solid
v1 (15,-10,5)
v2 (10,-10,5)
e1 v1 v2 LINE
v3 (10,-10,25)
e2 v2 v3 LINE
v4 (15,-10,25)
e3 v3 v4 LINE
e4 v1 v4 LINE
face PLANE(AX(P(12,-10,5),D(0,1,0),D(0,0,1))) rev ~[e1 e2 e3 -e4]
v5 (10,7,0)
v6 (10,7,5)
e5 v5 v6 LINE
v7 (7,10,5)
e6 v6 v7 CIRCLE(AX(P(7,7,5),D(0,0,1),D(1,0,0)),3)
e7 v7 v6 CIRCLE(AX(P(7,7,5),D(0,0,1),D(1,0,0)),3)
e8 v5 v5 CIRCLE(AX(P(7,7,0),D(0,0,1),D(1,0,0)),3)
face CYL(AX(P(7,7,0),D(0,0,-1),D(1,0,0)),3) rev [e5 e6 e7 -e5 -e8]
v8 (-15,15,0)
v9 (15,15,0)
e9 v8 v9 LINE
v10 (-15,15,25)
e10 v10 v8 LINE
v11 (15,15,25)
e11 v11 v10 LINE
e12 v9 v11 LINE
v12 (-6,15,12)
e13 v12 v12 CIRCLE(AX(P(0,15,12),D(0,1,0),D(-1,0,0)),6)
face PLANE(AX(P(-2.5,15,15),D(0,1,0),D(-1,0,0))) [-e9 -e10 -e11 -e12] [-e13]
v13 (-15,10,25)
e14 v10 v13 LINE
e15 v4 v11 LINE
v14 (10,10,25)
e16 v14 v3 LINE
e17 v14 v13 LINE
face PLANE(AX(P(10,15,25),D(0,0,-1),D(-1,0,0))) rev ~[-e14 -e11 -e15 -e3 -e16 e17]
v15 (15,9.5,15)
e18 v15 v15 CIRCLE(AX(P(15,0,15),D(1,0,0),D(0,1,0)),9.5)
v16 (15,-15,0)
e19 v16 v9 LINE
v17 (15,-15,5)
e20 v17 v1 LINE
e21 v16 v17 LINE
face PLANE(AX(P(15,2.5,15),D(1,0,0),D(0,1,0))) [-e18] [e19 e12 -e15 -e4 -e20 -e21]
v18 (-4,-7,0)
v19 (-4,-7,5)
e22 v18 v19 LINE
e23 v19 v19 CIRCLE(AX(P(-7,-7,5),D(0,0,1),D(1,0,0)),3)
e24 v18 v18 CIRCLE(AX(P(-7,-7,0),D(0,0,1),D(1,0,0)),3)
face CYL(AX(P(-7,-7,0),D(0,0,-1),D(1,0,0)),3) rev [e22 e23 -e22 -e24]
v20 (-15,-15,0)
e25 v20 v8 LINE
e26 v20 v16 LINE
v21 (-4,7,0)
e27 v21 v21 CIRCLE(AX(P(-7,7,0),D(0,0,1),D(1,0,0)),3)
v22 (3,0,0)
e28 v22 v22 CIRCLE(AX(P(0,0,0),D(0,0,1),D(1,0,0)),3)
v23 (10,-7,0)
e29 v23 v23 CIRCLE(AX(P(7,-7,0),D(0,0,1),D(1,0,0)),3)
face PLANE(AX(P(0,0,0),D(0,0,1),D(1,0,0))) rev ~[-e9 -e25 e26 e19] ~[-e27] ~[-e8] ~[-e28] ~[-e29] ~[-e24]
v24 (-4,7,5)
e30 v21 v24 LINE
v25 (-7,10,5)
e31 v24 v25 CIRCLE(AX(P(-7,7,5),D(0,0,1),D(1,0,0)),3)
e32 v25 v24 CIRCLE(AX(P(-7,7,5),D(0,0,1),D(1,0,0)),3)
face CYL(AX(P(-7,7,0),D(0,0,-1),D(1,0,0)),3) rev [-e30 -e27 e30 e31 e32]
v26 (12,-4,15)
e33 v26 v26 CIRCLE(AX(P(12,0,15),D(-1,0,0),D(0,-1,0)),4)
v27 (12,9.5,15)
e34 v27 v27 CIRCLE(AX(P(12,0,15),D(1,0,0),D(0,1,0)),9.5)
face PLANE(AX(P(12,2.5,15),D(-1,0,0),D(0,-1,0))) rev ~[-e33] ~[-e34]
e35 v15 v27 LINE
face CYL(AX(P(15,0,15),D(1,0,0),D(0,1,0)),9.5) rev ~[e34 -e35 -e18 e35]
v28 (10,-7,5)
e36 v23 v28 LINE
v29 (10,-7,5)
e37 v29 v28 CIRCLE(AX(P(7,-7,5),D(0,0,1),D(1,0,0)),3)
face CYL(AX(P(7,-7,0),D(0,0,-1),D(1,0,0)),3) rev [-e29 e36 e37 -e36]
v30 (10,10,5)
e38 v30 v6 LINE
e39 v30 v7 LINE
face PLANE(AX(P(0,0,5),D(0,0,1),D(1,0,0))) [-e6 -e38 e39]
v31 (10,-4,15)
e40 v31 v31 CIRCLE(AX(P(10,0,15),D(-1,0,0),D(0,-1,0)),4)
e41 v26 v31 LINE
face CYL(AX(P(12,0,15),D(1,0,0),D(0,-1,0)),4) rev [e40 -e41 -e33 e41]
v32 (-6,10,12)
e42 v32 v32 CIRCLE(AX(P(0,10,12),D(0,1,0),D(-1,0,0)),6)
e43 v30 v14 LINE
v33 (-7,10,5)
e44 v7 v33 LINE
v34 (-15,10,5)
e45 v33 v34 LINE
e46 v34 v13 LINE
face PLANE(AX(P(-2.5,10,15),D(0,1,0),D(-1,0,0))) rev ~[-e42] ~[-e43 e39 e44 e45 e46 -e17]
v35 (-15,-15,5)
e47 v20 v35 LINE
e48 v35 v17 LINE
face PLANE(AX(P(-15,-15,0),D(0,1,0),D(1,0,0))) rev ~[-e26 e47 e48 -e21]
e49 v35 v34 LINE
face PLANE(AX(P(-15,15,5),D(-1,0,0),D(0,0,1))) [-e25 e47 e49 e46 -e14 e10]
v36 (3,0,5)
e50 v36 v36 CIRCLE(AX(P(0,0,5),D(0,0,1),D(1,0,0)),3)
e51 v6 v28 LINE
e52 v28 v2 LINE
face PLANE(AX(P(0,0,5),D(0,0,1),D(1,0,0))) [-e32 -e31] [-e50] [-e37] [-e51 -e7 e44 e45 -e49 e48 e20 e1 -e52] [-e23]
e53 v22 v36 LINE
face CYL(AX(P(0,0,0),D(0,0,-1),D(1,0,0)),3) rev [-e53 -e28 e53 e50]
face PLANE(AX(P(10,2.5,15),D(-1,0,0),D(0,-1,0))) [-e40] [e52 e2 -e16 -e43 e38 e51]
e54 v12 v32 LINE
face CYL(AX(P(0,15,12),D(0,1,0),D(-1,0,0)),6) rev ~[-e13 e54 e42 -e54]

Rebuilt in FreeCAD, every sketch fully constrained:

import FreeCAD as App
import Part
import Sketcher
from FreeCAD import Vector
Q = App.Units.Quantity

doc = App.newDocument("Part")
body = doc.addObject("PartDesign::Body", "Body")

# Sketch on XY plane
sketch1 = body.newObject("Sketcher::SketchObject", "Sketch")
sketch1.AttachmentSupport = (doc.getObject("XY_Plane"), [""])
sketch1.MapMode = "FlatFace"
sketch1.addGeometry([
    Part.LineSegment(Vector(-15, 15, 0), Vector(-15, -15, 0)),  # 0
    Part.LineSegment(Vector(-15, -15, 0), Vector(15, -15, 0)),  # 1
    Part.LineSegment(Vector(15, -15, 0), Vector(15, 15, 0)),  # 2
    Part.LineSegment(Vector(15, 15, 0), Vector(-15, 15, 0)),  # 3
    Part.Circle(Vector(-7, -7, 0), Vector(0, 0, 1), 3),  # 4
    Part.Circle(Vector(7, -7, 0), Vector(0, 0, 1), 3),  # 5
    Part.Circle(Vector(-7, 7, 0), Vector(0, 0, 1), 3),  # 6
    Part.Circle(Vector(0, 0, 0), Vector(0, 0, 1), 3),  # 7
    Part.Circle(Vector(7, 7, 0), Vector(0, 0, 1), 3),  # 8
], False)
sketch1.addConstraint([
    Sketcher.Constraint("Coincident", 0, 2, 1, 1),
    Sketcher.Constraint("Coincident", 1, 2, 2, 1),
    Sketcher.Constraint("Coincident", 2, 2, 3, 1),
    Sketcher.Constraint("Coincident", 3, 2, 0, 1),
    Sketcher.Constraint("Vertical", 0),
    Sketcher.Constraint("Horizontal", 1),
    Sketcher.Constraint("Vertical", 2),
    Sketcher.Constraint("Horizontal", 3),
    Sketcher.Constraint("Coincident", 7, 3, -1, 1),
    Sketcher.Constraint("Equal", 4, 5),
    Sketcher.Constraint("Equal", 5, 6),
    Sketcher.Constraint("Equal", 6, 7),
    Sketcher.Constraint("Equal", 7, 8),
    Sketcher.Constraint("Symmetric", 5, 3, 6, 3, -1, 1),
    Sketcher.Constraint("Symmetric", 4, 3, 8, 3, -1, 1),
    Sketcher.Constraint("Symmetric", 0, 2, 2, 2, -1, 1),
    Sketcher.Constraint("Symmetric", 4, 3, 5, 3, -2),
    Sketcher.Constraint("Equal", 3, 0),
    Sketcher.Constraint("Diameter", 4, Q("6 mm")),
    Sketcher.Constraint("DistanceX", 1, 1, 1, 2, Q("30 mm")),
    Sketcher.Constraint("DistanceX", 4, 3, -1, 1, Q("7 mm")),
    Sketcher.Constraint("DistanceY", 4, 3, -1, 1, Q("7 mm")),
])
pad1 = body.newObject("PartDesign::Pad", "Pad")
pad1.Profile = sketch1
pad1.Length = 5

# Sketch on YZ plane
sketch2 = body.newObject("Sketcher::SketchObject", "Sketch001")
sketch2.AttachmentSupport = (doc.getObject("YZ_Plane"), [""])
sketch2.MapMode = "FlatFace"
sketch2.AttachmentOffset = App.Placement(Vector(0, 0, 15), App.Rotation())
sketch2.addGeometry([
    Part.LineSegment(Vector(-10, 25, 0), Vector(-10, 5, 0)),  # 0
    Part.LineSegment(Vector(-10, 5, 0), Vector(15, 5, 0)),  # 1
    Part.LineSegment(Vector(15, 5, 0), Vector(15, 25, 0)),  # 2
    Part.LineSegment(Vector(15, 25, 0), Vector(-10, 25, 0)),  # 3
    Part.Circle(Vector(0, 15, 0), Vector(0, 0, 1), 9.5),  # 4
], False)
sketch2.addConstraint([
    Sketcher.Constraint("Coincident", 0, 2, 1, 1),
    Sketcher.Constraint("Coincident", 1, 2, 2, 1),
    Sketcher.Constraint("Coincident", 2, 2, 3, 1),
    Sketcher.Constraint("Coincident", 3, 2, 0, 1),
    Sketcher.Constraint("Vertical", 0),
    Sketcher.Constraint("Horizontal", 1),
    Sketcher.Constraint("Vertical", 2),
    Sketcher.Constraint("Horizontal", 3),
    Sketcher.Constraint("PointOnObject", 4, 3, -2),
    Sketcher.Constraint("Diameter", 4, Q("19 mm")),
    Sketcher.Constraint("DistanceX", 1, 1, 1, 2, Q("25 mm")),
    Sketcher.Constraint("DistanceY", 0, 2, 0, 1, Q("20 mm")),
    Sketcher.Constraint("DistanceY", -1, 1, 4, 3, Q("15 mm")),
    Sketcher.Constraint("DistanceX", 0, 2, -1, 1, Q("10 mm")),
    Sketcher.Constraint("DistanceY", -1, 1, 0, 2, Q("5 mm")),
])
pad2 = body.newObject("PartDesign::Pad", "Pad001")
pad2.Profile = sketch2
pad2.Length = 3
pad2.Reversed = True

# Sketch on YZ plane
sketch3 = body.newObject("Sketcher::SketchObject", "Sketch002")
sketch3.AttachmentSupport = (doc.getObject("YZ_Plane"), [""])
sketch3.MapMode = "FlatFace"
sketch3.AttachmentOffset = App.Placement(Vector(0, 0, 12), App.Rotation())
sketch3.addGeometry([
    Part.LineSegment(Vector(15, 25, 0), Vector(15, 5, 0)),  # 0
    Part.LineSegment(Vector(15, 5, 0), Vector(-10, 5, 0)),  # 1
    Part.LineSegment(Vector(-10, 5, 0), Vector(-10, 25, 0)),  # 2
    Part.LineSegment(Vector(-10, 25, 0), Vector(15, 25, 0)),  # 3
    Part.Circle(Vector(0, 15, 0), Vector(0, 0, 1), 4),  # 4
], False)
sketch3.addConstraint([
    Sketcher.Constraint("Coincident", 0, 2, 1, 1),
    Sketcher.Constraint("Coincident", 1, 2, 2, 1),
    Sketcher.Constraint("Coincident", 2, 2, 3, 1),
    Sketcher.Constraint("Coincident", 3, 2, 0, 1),
    Sketcher.Constraint("Vertical", 0),
    Sketcher.Constraint("Horizontal", 1),
    Sketcher.Constraint("Vertical", 2),
    Sketcher.Constraint("Horizontal", 3),
    Sketcher.Constraint("PointOnObject", 4, 3, -2),
    Sketcher.Constraint("Diameter", 4, Q("8 mm")),
    Sketcher.Constraint("DistanceX", 1, 2, 1, 1, Q("25 mm")),
    Sketcher.Constraint("DistanceY", 0, 2, 0, 1, Q("20 mm")),
    Sketcher.Constraint("DistanceY", -1, 1, 4, 3, Q("15 mm")),
    Sketcher.Constraint("DistanceX", -1, 1, 0, 2, Q("15 mm")),
    Sketcher.Constraint("DistanceY", -1, 1, 0, 2, Q("5 mm")),
])
pad3 = body.newObject("PartDesign::Pad", "Pad002")
pad3.Profile = sketch3
pad3.Length = 2
pad3.Reversed = True

# Sketch on XZ plane
sketch4 = body.newObject("Sketcher::SketchObject", "Sketch003")
sketch4.AttachmentSupport = (doc.getObject("XZ_Plane"), [""])
sketch4.MapMode = "FlatFace"
sketch4.AttachmentOffset = App.Placement(Vector(0, 0, -15), App.Rotation())
sketch4.addGeometry([
    Part.LineSegment(Vector(10, 25, 0), Vector(10, 5, 0)),  # 0
    Part.LineSegment(Vector(10, 5, 0), Vector(-15, 5, 0)),  # 1
    Part.LineSegment(Vector(-15, 5, 0), Vector(-15, 25, 0)),  # 2
    Part.LineSegment(Vector(-15, 25, 0), Vector(10, 25, 0)),  # 3
    Part.Circle(Vector(0, 12, 0), Vector(0, 0, 1), 6),  # 4
], False)
sketch4.addConstraint([
    Sketcher.Constraint("Coincident", 0, 2, 1, 1),
    Sketcher.Constraint("Coincident", 1, 2, 2, 1),
    Sketcher.Constraint("Coincident", 2, 2, 3, 1),
    Sketcher.Constraint("Coincident", 3, 2, 0, 1),
    Sketcher.Constraint("Vertical", 0),
    Sketcher.Constraint("Horizontal", 1),
    Sketcher.Constraint("Vertical", 2),
    Sketcher.Constraint("Horizontal", 3),
    Sketcher.Constraint("PointOnObject", 4, 3, -2),
    Sketcher.Constraint("Diameter", 4, Q("12 mm")),
    Sketcher.Constraint("DistanceX", 1, 2, 1, 1, Q("25 mm")),
    Sketcher.Constraint("DistanceY", 0, 2, 0, 1, Q("20 mm")),
    Sketcher.Constraint("DistanceY", -1, 1, 4, 3, Q("12 mm")),
    Sketcher.Constraint("DistanceX", -1, 1, 0, 2, Q("10 mm")),
    Sketcher.Constraint("DistanceY", -1, 1, 0, 2, Q("5 mm")),
])
pad4 = body.newObject("PartDesign::Pad", "Pad003")
pad4.Profile = sketch4
pad4.Length = 5

doc.recompute()
